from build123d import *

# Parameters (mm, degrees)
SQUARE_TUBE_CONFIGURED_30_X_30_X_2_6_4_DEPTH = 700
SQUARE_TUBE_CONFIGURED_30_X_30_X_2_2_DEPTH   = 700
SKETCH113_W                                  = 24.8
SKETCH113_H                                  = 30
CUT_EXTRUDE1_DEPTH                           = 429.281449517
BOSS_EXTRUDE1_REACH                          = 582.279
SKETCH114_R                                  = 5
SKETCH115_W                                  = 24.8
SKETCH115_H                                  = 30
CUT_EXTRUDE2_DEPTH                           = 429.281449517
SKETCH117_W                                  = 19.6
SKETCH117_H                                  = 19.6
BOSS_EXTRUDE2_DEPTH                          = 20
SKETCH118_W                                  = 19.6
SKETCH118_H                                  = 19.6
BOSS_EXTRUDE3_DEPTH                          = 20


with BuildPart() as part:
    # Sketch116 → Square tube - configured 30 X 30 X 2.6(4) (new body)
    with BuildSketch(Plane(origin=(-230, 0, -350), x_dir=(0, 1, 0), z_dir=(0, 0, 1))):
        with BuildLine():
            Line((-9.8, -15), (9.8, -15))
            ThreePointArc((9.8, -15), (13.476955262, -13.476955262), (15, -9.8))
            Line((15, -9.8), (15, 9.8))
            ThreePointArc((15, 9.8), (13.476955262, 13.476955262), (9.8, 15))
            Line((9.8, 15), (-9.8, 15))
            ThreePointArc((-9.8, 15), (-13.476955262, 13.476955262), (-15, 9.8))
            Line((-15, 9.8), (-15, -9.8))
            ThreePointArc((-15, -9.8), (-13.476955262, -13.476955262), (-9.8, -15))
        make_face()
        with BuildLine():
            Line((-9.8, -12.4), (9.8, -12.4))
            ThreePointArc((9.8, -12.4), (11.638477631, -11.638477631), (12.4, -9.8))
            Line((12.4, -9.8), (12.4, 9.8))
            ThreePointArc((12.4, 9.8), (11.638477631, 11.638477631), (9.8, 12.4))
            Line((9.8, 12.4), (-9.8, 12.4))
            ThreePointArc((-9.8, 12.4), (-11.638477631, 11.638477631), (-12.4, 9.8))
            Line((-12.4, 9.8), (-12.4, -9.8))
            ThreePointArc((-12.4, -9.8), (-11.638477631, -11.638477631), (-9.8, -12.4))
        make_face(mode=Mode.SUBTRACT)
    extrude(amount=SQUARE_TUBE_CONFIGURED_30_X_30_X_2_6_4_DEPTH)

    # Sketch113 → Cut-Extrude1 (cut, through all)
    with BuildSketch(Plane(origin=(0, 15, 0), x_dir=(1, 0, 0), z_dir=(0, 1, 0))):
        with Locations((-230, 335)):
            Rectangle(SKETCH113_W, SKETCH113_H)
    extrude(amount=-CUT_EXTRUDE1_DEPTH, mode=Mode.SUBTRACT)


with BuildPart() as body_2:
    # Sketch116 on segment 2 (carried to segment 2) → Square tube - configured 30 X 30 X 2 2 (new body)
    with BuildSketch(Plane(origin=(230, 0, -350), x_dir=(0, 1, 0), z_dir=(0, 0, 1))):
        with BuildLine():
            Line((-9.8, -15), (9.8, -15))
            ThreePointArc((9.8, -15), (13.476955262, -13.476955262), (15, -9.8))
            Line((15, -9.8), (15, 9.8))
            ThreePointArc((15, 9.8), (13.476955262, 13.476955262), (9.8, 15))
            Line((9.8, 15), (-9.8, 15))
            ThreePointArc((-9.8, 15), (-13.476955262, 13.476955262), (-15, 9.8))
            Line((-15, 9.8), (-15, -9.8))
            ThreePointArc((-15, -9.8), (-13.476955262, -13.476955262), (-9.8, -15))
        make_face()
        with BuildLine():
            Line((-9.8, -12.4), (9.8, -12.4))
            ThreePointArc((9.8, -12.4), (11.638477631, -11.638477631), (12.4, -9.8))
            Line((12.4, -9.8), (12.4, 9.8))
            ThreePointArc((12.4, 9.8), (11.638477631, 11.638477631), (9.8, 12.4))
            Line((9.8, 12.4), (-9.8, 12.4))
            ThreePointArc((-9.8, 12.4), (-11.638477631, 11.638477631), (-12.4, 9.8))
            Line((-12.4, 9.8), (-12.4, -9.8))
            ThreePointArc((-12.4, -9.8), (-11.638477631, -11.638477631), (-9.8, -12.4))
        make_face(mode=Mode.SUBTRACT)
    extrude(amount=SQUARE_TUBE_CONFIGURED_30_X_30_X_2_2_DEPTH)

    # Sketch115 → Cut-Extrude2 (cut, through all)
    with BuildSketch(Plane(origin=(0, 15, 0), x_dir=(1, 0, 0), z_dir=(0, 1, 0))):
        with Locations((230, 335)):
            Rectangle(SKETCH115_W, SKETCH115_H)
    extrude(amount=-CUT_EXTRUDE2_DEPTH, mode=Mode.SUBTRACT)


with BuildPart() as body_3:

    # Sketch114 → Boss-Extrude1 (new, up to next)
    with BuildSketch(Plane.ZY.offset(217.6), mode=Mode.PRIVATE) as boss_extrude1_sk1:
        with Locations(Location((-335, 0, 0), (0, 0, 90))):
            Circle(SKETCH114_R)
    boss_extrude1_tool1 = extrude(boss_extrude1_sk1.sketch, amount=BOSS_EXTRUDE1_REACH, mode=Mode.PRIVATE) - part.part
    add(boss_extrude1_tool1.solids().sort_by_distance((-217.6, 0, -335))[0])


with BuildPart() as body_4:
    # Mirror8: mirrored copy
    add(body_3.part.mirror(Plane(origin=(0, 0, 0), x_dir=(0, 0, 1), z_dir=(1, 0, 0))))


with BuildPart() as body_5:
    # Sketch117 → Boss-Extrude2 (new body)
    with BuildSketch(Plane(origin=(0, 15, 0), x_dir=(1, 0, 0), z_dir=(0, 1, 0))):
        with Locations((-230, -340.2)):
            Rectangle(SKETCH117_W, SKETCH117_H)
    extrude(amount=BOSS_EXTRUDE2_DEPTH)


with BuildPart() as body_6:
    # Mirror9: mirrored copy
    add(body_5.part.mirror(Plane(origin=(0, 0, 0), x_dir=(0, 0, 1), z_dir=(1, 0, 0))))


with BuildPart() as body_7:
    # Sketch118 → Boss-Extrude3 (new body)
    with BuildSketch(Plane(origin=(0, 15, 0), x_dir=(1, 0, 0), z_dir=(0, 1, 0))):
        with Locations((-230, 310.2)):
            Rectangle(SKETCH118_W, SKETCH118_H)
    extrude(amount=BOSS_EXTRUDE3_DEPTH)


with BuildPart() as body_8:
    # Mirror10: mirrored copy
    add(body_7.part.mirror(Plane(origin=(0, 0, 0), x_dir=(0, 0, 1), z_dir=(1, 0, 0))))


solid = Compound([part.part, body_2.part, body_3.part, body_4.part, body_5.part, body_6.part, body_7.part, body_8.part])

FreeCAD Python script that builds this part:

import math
import FreeCAD as App
import Part
import Sketcher

V = App.Vector
Q = App.Units.Quantity

doc = App.newDocument("Part")
body = doc.addObject("PartDesign::Body", "Body")

# Sketch on XY plane
sketch1 = body.newObject("Sketcher::SketchObject", "Sketch")
sketch1.AttachmentSupport = (doc.getObject("XY_Plane"), [""])
sketch1.MapMode = "FlatFace"
sketch1.AttachmentOffset = App.Placement(V(0, 0, -350), App.Rotation())
sketch1.addGeometry(Part.LineSegment(V(-215, -9.8, 0), V(-215, 9.8, 0)), False)
sketch1.addGeometry(Part.ArcOfCircle(Part.Circle(V(-220.2, 9.8, 0), V(0, 0, 1), 5.2), math.radians(0), math.radians(90)), False)
sketch1.addGeometry(Part.LineSegment(V(-220.2, 15, 0), V(-239.8, 15, 0)), False)
sketch1.addGeometry(Part.ArcOfCircle(Part.Circle(V(-239.8, 9.8, 0), V(0, 0, 1), 5.2), math.radians(90), math.radians(180)), False)
sketch1.addGeometry(Part.LineSegment(V(-245, 9.8, 0), V(-245, -9.8, 0)), False)
sketch1.addGeometry(Part.ArcOfCircle(Part.Circle(V(-239.8, -9.8, 0), V(0, 0, 1), 5.2), math.radians(-180), math.radians(-90)), False)
sketch1.addGeometry(Part.LineSegment(V(-239.8, -15, 0), V(-220.2, -15, 0)), False)
sketch1.addGeometry(Part.ArcOfCircle(Part.Circle(V(-220.2, -9.8, 0), V(0, 0, 1), 5.2), math.radians(-90), math.radians(0)), False)
sketch1.addGeometry(Part.LineSegment(V(-217.6, 9.8, 0), V(-217.6, -9.8, 0)), False)
sketch1.addGeometry(Part.ArcOfCircle(Part.Circle(V(-220.2, -9.8, 0), V(0, 0, 1), 2.6), math.radians(-90), math.radians(0)), False)
sketch1.addGeometry(Part.LineSegment(V(-220.2, -12.4, 0), V(-239.8, -12.4, 0)), False)
sketch1.addGeometry(Part.ArcOfCircle(Part.Circle(V(-239.8, -9.8, 0), V(0, 0, 1), 2.6), math.radians(180), math.radians(270)), False)
sketch1.addGeometry(Part.LineSegment(V(-242.4, -9.8, 0), V(-242.4, 9.8, 0)), False)
sketch1.addGeometry(Part.ArcOfCircle(Part.Circle(V(-239.8, 9.8, 0), V(0, 0, 1), 2.6), math.radians(90), math.radians(180)), False)
sketch1.addGeometry(Part.LineSegment(V(-239.8, 12.4, 0), V(-220.2, 12.4, 0)), False)
sketch1.addGeometry(Part.ArcOfCircle(Part.Circle(V(-220.2, 9.8, 0), V(0, 0, 1), 2.6), math.radians(0), math.radians(90)), False)
sketch1.addConstraint(Sketcher.Constraint("Tangent", 0, 2, 1, 1))
sketch1.addConstraint(Sketcher.Constraint("Tangent", 1, 2, 2, 1))
sketch1.addConstraint(Sketcher.Constraint("Tangent", 2, 2, 3, 1))
sketch1.addConstraint(Sketcher.Constraint("Tangent", 3, 2, 4, 1))
sketch1.addConstraint(Sketcher.Constraint("Tangent", 4, 2, 5, 1))
sketch1.addConstraint(Sketcher.Constraint("Tangent", 5, 2, 6, 1))
sketch1.addConstraint(Sketcher.Constraint("Tangent", 6, 2, 7, 1))
sketch1.addConstraint(Sketcher.Constraint("Tangent", 7, 2, 0, 1))
sketch1.addConstraint(Sketcher.Constraint("Tangent", 8, 2, 9, 2))
sketch1.addConstraint(Sketcher.Constraint("Tangent", 9, 1, 10, 1))
sketch1.addConstraint(Sketcher.Constraint("Tangent", 10, 2, 11, 2))
sketch1.addConstraint(Sketcher.Constraint("Tangent", 11, 1, 12, 1))
sketch1.addConstraint(Sketcher.Constraint("Tangent", 12, 2, 13, 2))
sketch1.addConstraint(Sketcher.Constraint("Tangent", 13, 1, 14, 1))
sketch1.addConstraint(Sketcher.Constraint("Tangent", 14, 2, 15, 2))
sketch1.addConstraint(Sketcher.Constraint("Tangent", 15, 1, 8, 1))
sketch1.addConstraint(Sketcher.Constraint("Vertical", 0))
sketch1.addConstraint(Sketcher.Constraint("Horizontal", 2))
sketch1.addConstraint(Sketcher.Constraint("Vertical", 4))
sketch1.addConstraint(Sketcher.Constraint("Horizontal", 6))
sketch1.addConstraint(Sketcher.Constraint("Vertical", 8))
sketch1.addConstraint(Sketcher.Constraint("Horizontal", 10))
sketch1.addConstraint(Sketcher.Constraint("Vertical", 12))
sketch1.addConstraint(Sketcher.Constraint("Horizontal", 14))
sketch1.addConstraint(Sketcher.Constraint("Coincident", 9, 3, 7, 3))
sketch1.addConstraint(Sketcher.Constraint("Coincident", 11, 3, 5, 3))
sketch1.addConstraint(Sketcher.Constraint("Coincident", 13, 3, 3, 3))
sketch1.addConstraint(Sketcher.Constraint("Equal", 1, 3))
sketch1.addConstraint(Sketcher.Constraint("Equal", 3, 5))
sketch1.addConstraint(Sketcher.Constraint("Equal", 5, 7))
sketch1.addConstraint(Sketcher.Constraint("Equal", 13, 15))
sketch1.addConstraint(Sketcher.Constraint("Equal", 14, 0))
sketch1.addConstraint(Sketcher.Constraint("Radius", 1, Q("5.2 mm")))
sketch1.addConstraint(Sketcher.Constraint("Radius", 9, Q("2.6 mm")))
sketch1.addConstraint(Sketcher.Constraint("DistanceX", 2, 2, 2, 1, Q("19.6 mm")))
sketch1.addConstraint(Sketcher.Constraint("DistanceX", 0, 2, -1, 1, Q("215 mm")))
sketch1.addConstraint(Sketcher.Constraint("DistanceY", -1, 1, 1, 2, Q("15 mm")))
pad1 = body.newObject("PartDesign::Pad", "Pad")
pad1.Profile = sketch1
pad1.Length = 700

# Sketch on XZ plane
sketch2 = body.newObject("Sketcher::SketchObject", "Sketch001")
sketch2.AttachmentSupport = (doc.getObject("XZ_Plane"), [""])
sketch2.MapMode = "FlatFace"
sketch2.AttachmentOffset = App.Placement(V(0, 0, -15), App.Rotation())
sketch2.addGeometry(Part.LineSegment(V(-242.4, -350, 0), V(-242.4, -320, 0)), False)
sketch2.addGeometry(Part.LineSegment(V(-242.4, -320, 0), V(-217.6, -320, 0)), False)
sketch2.addGeometry(Part.LineSegment(V(-217.6, -320, 0), V(-217.6, -350, 0)), False)
sketch2.addGeometry(Part.LineSegment(V(-217.6, -350, 0), V(-242.4, -350, 0)), False)
sketch2.addConstraint(Sketcher.Constraint("Coincident", 0, 2, 1, 1))
sketch2.addConstraint(Sketcher.Constraint("Coincident", 1, 2, 2, 1))
sketch2.addConstraint(Sketcher.Constraint("Coincident", 2, 2, 3, 1))
sketch2.addConstraint(Sketcher.Constraint("Coincident", 3, 2, 0, 1))
sketch2.addConstraint(Sketcher.Constraint("Vertical", 0))
sketch2.addConstraint(Sketcher.Constraint("Horizontal", 1))
sketch2.addConstraint(Sketcher.Constraint("Vertical", 2))
sketch2.addConstraint(Sketcher.Constraint("Horizontal", 3))
sketch2.addConstraint(Sketcher.Constraint("DistanceY", 0, 1, 0, 2, Q("30 mm")))
sketch2.addConstraint(Sketcher.Constraint("DistanceX", 1, 1, 1, 2, Q("24.8 mm")))
sketch2.addConstraint(Sketcher.Constraint("DistanceY", 0, 2, -1, 1, Q("320 mm")))
sketch2.addConstraint(Sketcher.Constraint("DistanceX", 0, 2, -1, 1, Q("242.4 mm")))
pocket1 = body.newObject("PartDesign::Pocket", "Pocket")
pocket1.Profile = sketch2
pocket1.Type = "ThroughAll"
pocket1.Reversed = True
body2 = doc.addObject("PartDesign::Body", "Body001")

# Sketch on XY plane
sketch3 = body2.newObject("Sketcher::SketchObject", "Sketch002")
sketch3.AttachmentSupport = (doc.getObject("XY_Plane001"), [""])
sketch3.MapMode = "FlatFace"
sketch3.AttachmentOffset = App.Placement(V(0, 0, -350), App.Rotation())
sketch3.addGeometry(Part.LineSegment(V(245, -9.8, 0), V(245, 9.8, 0)), False)
sketch3.addGeometry(Part.ArcOfCircle(Part.Circle(V(239.8, 9.8, 0), V(0, 0, 1), 5.2), math.radians(0), math.radians(90)), False)
sketch3.addGeometry(Part.LineSegment(V(239.8, 15, 0), V(220.2, 15, 0)), False)
sketch3.addGeometry(Part.ArcOfCircle(Part.Circle(V(220.2, 9.8, 0), V(0, 0, 1), 5.2), math.radians(90), math.radians(180)), False)
sketch3.addGeometry(Part.LineSegment(V(215, 9.8, 0), V(215, -9.8, 0)), False)
sketch3.addGeometry(Part.ArcOfCircle(Part.Circle(V(220.2, -9.8, 0), V(0, 0, 1), 5.2), math.radians(-180), math.radians(-90)), False)
sketch3.addGeometry(Part.LineSegment(V(220.2, -15, 0), V(239.8, -15, 0)), False)
sketch3.addGeometry(Part.ArcOfCircle(Part.Circle(V(239.8, -9.8, 0), V(0, 0, 1), 5.2), math.radians(-90), math.radians(0)), False)
sketch3.addGeometry(Part.LineSegment(V(242.4, 9.8, 0), V(242.4, -9.8, 0)), False)
sketch3.addGeometry(Part.ArcOfCircle(Part.Circle(V(239.8, -9.8, 0), V(0, 0, 1), 2.6), math.radians(-90), math.radians(0)), False)
sketch3.addGeometry(Part.LineSegment(V(239.8, -12.4, 0), V(220.2, -12.4, 0)), False)
sketch3.addGeometry(Part.ArcOfCircle(Part.Circle(V(220.2, -9.8, 0), V(0, 0, 1), 2.6), math.radians(180), math.radians(270)), False)
sketch3.addGeometry(Part.LineSegment(V(217.6, -9.8, 0), V(217.6, 9.8, 0)), False)
sketch3.addGeometry(Part.ArcOfCircle(Part.Circle(V(220.2, 9.8, 0), V(0, 0, 1), 2.6), math.radians(90), math.radians(180)), False)
sketch3.addGeometry(Part.LineSegment(V(220.2, 12.4, 0), V(239.8, 12.4, 0)), False)
sketch3.addGeometry(Part.ArcOfCircle(Part.Circle(V(239.8, 9.8, 0), V(0, 0, 1), 2.6), math.radians(0), math.radians(90)), False)
sketch3.addConstraint(Sketcher.Constraint("Tangent", 0, 2, 1, 1))
sketch3.addConstraint(Sketcher.Constraint("Tangent", 1, 2, 2, 1))
sketch3.addConstraint(Sketcher.Constraint("Tangent", 2, 2, 3, 1))
sketch3.addConstraint(Sketcher.Constraint("Tangent", 3, 2, 4, 1))
sketch3.addConstraint(Sketcher.Constraint("Tangent", 4, 2, 5, 1))
sketch3.addConstraint(Sketcher.Constraint("Tangent", 5, 2, 6, 1))
sketch3.addConstraint(Sketcher.Constraint("Tangent", 6, 2, 7, 1))
sketch3.addConstraint(Sketcher.Constraint("Tangent", 7, 2, 0, 1))
sketch3.addConstraint(Sketcher.Constraint("Tangent", 8, 2, 9, 2))
sketch3.addConstraint(Sketcher.Constraint("Tangent", 9, 1, 10, 1))
sketch3.addConstraint(Sketcher.Constraint("Tangent", 10, 2, 11, 2))
sketch3.addConstraint(Sketcher.Constraint("Tangent", 11, 1, 12, 1))
sketch3.addConstraint(Sketcher.Constraint("Tangent", 12, 2, 13, 2))
sketch3.addConstraint(Sketcher.Constraint("Tangent", 13, 1, 14, 1))
sketch3.addConstraint(Sketcher.Constraint("Tangent", 14, 2, 15, 2))
sketch3.addConstraint(Sketcher.Constraint("Tangent", 15, 1, 8, 1))
sketch3.addConstraint(Sketcher.Constraint("Vertical", 0))
sketch3.addConstraint(Sketcher.Constraint("Horizontal", 2))
sketch3.addConstraint(Sketcher.Constraint("Vertical", 4))
sketch3.addConstraint(Sketcher.Constraint("Horizontal", 6))
sketch3.addConstraint(Sketcher.Constraint("Vertical", 8))
sketch3.addConstraint(Sketcher.Constraint("Horizontal", 10))
sketch3.addConstraint(Sketcher.Constraint("Vertical", 12))
sketch3.addConstraint(Sketcher.Constraint("Horizontal", 14))
sketch3.addConstraint(Sketcher.Constraint("Coincident", 9, 3, 7, 3))
sketch3.addConstraint(Sketcher.Constraint("Coincident", 11, 3, 5, 3))
sketch3.addConstraint(Sketcher.Constraint("Coincident", 13, 3, 3, 3))
sketch3.addConstraint(Sketcher.Constraint("Equal", 1, 3))
sketch3.addConstraint(Sketcher.Constraint("Equal", 3, 5))
sketch3.addConstraint(Sketcher.Constraint("Equal", 5, 7))
sketch3.addConstraint(Sketcher.Constraint("Equal", 13, 15))
sketch3.addConstraint(Sketcher.Constraint("Equal", 14, 0))
sketch3.addConstraint(Sketcher.Constraint("Radius", 1, Q("5.2 mm")))
sketch3.addConstraint(Sketcher.Constraint("Radius", 9, Q("2.6 mm")))
sketch3.addConstraint(Sketcher.Constraint("DistanceX", 2, 2, 2, 1, Q("19.6 mm")))
sketch3.addConstraint(Sketcher.Constraint("DistanceX", -1, 1, 0, 2, Q("245 mm")))
sketch3.addConstraint(Sketcher.Constraint("DistanceY", -1, 1, 1, 2, Q("15 mm")))
pad2 = body2.newObject("PartDesign::Pad", "Pad001")
pad2.Profile = sketch3
pad2.Length = 700

# Sketch on XZ plane
sketch4 = body2.newObject("Sketcher::SketchObject", "Sketch003")
sketch4.AttachmentSupport = (doc.getObject("XZ_Plane001"), [""])
sketch4.MapMode = "FlatFace"
sketch4.AttachmentOffset = App.Placement(V(0, 0, -15), App.Rotation())
sketch4.addGeometry(Part.LineSegment(V(217.6, -350, 0), V(217.6, -320, 0)), False)
sketch4.addGeometry(Part.LineSegment(V(217.6, -320, 0), V(242.4, -320, 0)), False)
sketch4.addGeometry(Part.LineSegment(V(242.4, -320, 0), V(242.4, -350, 0)), False)
sketch4.addGeometry(Part.LineSegment(V(242.4, -350, 0), V(217.6, -350, 0)), False)
sketch4.addConstraint(Sketcher.Constraint("Coincident", 0, 2, 1, 1))
sketch4.addConstraint(Sketcher.Constraint("Coincident", 1, 2, 2, 1))
sketch4.addConstraint(Sketcher.Constraint("Coincident", 2, 2, 3, 1))
sketch4.addConstraint(Sketcher.Constraint("Coincident", 3, 2, 0, 1))
sketch4.addConstraint(Sketcher.Constraint("Vertical", 0))
sketch4.addConstraint(Sketcher.Constraint("Horizontal", 1))
sketch4.addConstraint(Sketcher.Constraint("Vertical", 2))
sketch4.addConstraint(Sketcher.Constraint("Horizontal", 3))
sketch4.addConstraint(Sketcher.Constraint("DistanceY", 0, 1, 0, 2, Q("30 mm")))
sketch4.addConstraint(Sketcher.Constraint("DistanceX", 1, 1, 1, 2, Q("24.8 mm")))
sketch4.addConstraint(Sketcher.Constraint("DistanceY", 0, 2, -1, 1, Q("320 mm")))
sketch4.addConstraint(Sketcher.Constraint("DistanceX", -1, 1, 0, 2, Q("217.6 mm")))
pocket2 = body2.newObject("PartDesign::Pocket", "Pocket001")
pocket2.Profile = sketch4
pocket2.Type = "ThroughAll"
pocket2.Reversed = True
body3 = doc.addObject("PartDesign::Body", "Body002")

# Sketch on YZ plane
sketch5 = body3.newObject("Sketcher::SketchObject", "Sketch004")
sketch5.AttachmentSupport = (doc.getObject("YZ_Plane002"), [""])
sketch5.MapMode = "FlatFace"
sketch5.AttachmentOffset = App.Placement(V(0, 0, -217.6), App.Rotation())
sketch5.addGeometry(Part.Circle(V(0, -335, 0), V(0, 0, 1), 5), False)
sketch5.addConstraint(Sketcher.Constraint("PointOnObject", 0, 3, -2))
sketch5.addConstraint(Sketcher.Constraint("Diameter", 0, Q("10 mm")))
sketch5.addConstraint(Sketcher.Constraint("DistanceY", 0, 3, -1, 1, Q("335 mm")))
pad3 = body3.newObject("PartDesign::Pad", "Pad002")
pad3.Profile = sketch5
pad3.Length = 24.8
pad3.Reversed = True
body4 = doc.addObject("PartDesign::Body", "Body003")
doc.recompute()

mirroring = doc.addObject("Part::Mirroring", "Mirroring")
mirroring.Source = body3
mirroring.Base = V(0, 0, 0)
mirroring.Normal = V(1, 0, 0)
body4.BaseFeature = mirroring
doc.recompute()
body5 = doc.addObject("PartDesign::Body", "Body004")

# Sketch on XZ plane
sketch6 = body5.newObject("Sketcher::SketchObject", "Sketch005")
sketch6.AttachmentSupport = (doc.getObject("XZ_Plane004"), [""])
sketch6.MapMode = "FlatFace"
sketch6.AttachmentOffset = App.Placement(V(0, 0, -15), App.Rotation())
sketch6.addGeometry(Part.LineSegment(V(-239.8, 330.4, 0), V(-239.8, 350, 0)), False)
sketch6.addGeometry(Part.LineSegment(V(-239.8, 350, 0), V(-220.2, 350, 0)), False)
sketch6.addGeometry(Part.LineSegment(V(-220.2, 350, 0), V(-220.2, 330.4, 0)), False)
sketch6.addGeometry(Part.LineSegment(V(-220.2, 330.4, 0), V(-239.8, 330.4, 0)), False)
sketch6.addConstraint(Sketcher.Constraint("Coincident", 0, 2, 1, 1))
sketch6.addConstraint(Sketcher.Constraint("Coincident", 1, 2, 2, 1))
sketch6.addConstraint(Sketcher.Constraint("Coincident", 2, 2, 3, 1))
sketch6.addConstraint(Sketcher.Constraint("Coincident", 3, 2, 0, 1))
sketch6.addConstraint(Sketcher.Constraint("Vertical", 0))
sketch6.addConstraint(Sketcher.Constraint("Horizontal", 1))
sketch6.addConstraint(Sketcher.Constraint("Vertical", 2))
sketch6.addConstraint(Sketcher.Constraint("Horizontal", 3))
sketch6.addConstraint(Sketcher.Constraint("Equal", 3, 0))
sketch6.addConstraint(Sketcher.Constraint("DistanceX", 1, 1, 1, 2, Q("19.6 mm")))
sketch6.addConstraint(Sketcher.Constraint("DistanceY", -1, 1, 0, 2, Q("350 mm")))
sketch6.addConstraint(Sketcher.Constraint("DistanceX", 0, 2, -1, 1, Q("239.8 mm")))
pad4 = body5.newObject("PartDesign::Pad", "Pad003")
pad4.Profile = sketch6
pad4.Length = 20
pad4.Reversed = True
body6 = doc.addObject("PartDesign::Body", "Body005")
doc.recompute()

mirroring2 = doc.addObject("Part::Mirroring", "Mirroring001")
mirroring2.Source = body5
mirroring2.Base = V(0, 0, 0)
mirroring2.Normal = V(1, 0, 0)
body6.BaseFeature = mirroring2
doc.recompute()
body7 = doc.addObject("PartDesign::Body", "Body006")

# Sketch on XZ plane
sketch7 = body7.newObject("Sketcher::SketchObject", "Sketch006")
sketch7.AttachmentSupport = (doc.getObject("XZ_Plane006"), [""])
sketch7.MapMode = "FlatFace"
sketch7.AttachmentOffset = App.Placement(V(0, 0, -15), App.Rotation())
sketch7.addGeometry(Part.LineSegment(V(-239.8, -320, 0), V(-239.8, -300.4, 0)), False)
sketch7.addGeometry(Part.LineSegment(V(-239.8, -300.4, 0), V(-220.2, -300.4, 0)), False)
sketch7.addGeometry(Part.LineSegment(V(-220.2, -300.4, 0), V(-220.2, -320, 0)), False)
sketch7.addGeometry(Part.LineSegment(V(-220.2, -320, 0), V(-239.8, -320, 0)), False)
sketch7.addConstraint(Sketcher.Constraint("Coincident", 0, 2, 1, 1))
sketch7.addConstraint(Sketcher.Constraint("Coincident", 1, 2, 2, 1))
sketch7.addConstraint(Sketcher.Constraint("Coincident", 2, 2, 3, 1))
sketch7.addConstraint(Sketcher.Constraint("Coincident", 3, 2, 0, 1))
sketch7.addConstraint(Sketcher.Constraint("Vertical", 0))
sketch7.addConstraint(Sketcher.Constraint("Horizontal", 1))
sketch7.addConstraint(Sketcher.Constraint("Vertical", 2))
sketch7.addConstraint(Sketcher.Constraint("Horizontal", 3))
sketch7.addConstraint(Sketcher.Constraint("Equal", 3, 0))
sketch7.addConstraint(Sketcher.Constraint("DistanceX", 1, 1, 1, 2, Q("19.6 mm")))
sketch7.addConstraint(Sketcher.Constraint("DistanceY", 2, 2, -1, 1, Q("320 mm")))
sketch7.addConstraint(Sketcher.Constraint("DistanceX", 0, 2, -1, 1, Q("239.8 mm")))
pad5 = body7.newObject("PartDesign::Pad", "Pad004")
pad5.Profile = sketch7
pad5.Length = 20
pad5.Reversed = True
body8 = doc.addObject("PartDesign::Body", "Body007")
doc.recompute()

mirroring3 = doc.addObject("Part::Mirroring", "Mirroring002")
mirroring3.Source = body7
mirroring3.Base = V(0, 0, 0)
mirroring3.Normal = V(1, 0, 0)
body8.BaseFeature = mirroring3
doc.recompute()
mirroring.Visibility = False
mirroring2.Visibility = False
mirroring3.Visibility = False

doc.recompute()
